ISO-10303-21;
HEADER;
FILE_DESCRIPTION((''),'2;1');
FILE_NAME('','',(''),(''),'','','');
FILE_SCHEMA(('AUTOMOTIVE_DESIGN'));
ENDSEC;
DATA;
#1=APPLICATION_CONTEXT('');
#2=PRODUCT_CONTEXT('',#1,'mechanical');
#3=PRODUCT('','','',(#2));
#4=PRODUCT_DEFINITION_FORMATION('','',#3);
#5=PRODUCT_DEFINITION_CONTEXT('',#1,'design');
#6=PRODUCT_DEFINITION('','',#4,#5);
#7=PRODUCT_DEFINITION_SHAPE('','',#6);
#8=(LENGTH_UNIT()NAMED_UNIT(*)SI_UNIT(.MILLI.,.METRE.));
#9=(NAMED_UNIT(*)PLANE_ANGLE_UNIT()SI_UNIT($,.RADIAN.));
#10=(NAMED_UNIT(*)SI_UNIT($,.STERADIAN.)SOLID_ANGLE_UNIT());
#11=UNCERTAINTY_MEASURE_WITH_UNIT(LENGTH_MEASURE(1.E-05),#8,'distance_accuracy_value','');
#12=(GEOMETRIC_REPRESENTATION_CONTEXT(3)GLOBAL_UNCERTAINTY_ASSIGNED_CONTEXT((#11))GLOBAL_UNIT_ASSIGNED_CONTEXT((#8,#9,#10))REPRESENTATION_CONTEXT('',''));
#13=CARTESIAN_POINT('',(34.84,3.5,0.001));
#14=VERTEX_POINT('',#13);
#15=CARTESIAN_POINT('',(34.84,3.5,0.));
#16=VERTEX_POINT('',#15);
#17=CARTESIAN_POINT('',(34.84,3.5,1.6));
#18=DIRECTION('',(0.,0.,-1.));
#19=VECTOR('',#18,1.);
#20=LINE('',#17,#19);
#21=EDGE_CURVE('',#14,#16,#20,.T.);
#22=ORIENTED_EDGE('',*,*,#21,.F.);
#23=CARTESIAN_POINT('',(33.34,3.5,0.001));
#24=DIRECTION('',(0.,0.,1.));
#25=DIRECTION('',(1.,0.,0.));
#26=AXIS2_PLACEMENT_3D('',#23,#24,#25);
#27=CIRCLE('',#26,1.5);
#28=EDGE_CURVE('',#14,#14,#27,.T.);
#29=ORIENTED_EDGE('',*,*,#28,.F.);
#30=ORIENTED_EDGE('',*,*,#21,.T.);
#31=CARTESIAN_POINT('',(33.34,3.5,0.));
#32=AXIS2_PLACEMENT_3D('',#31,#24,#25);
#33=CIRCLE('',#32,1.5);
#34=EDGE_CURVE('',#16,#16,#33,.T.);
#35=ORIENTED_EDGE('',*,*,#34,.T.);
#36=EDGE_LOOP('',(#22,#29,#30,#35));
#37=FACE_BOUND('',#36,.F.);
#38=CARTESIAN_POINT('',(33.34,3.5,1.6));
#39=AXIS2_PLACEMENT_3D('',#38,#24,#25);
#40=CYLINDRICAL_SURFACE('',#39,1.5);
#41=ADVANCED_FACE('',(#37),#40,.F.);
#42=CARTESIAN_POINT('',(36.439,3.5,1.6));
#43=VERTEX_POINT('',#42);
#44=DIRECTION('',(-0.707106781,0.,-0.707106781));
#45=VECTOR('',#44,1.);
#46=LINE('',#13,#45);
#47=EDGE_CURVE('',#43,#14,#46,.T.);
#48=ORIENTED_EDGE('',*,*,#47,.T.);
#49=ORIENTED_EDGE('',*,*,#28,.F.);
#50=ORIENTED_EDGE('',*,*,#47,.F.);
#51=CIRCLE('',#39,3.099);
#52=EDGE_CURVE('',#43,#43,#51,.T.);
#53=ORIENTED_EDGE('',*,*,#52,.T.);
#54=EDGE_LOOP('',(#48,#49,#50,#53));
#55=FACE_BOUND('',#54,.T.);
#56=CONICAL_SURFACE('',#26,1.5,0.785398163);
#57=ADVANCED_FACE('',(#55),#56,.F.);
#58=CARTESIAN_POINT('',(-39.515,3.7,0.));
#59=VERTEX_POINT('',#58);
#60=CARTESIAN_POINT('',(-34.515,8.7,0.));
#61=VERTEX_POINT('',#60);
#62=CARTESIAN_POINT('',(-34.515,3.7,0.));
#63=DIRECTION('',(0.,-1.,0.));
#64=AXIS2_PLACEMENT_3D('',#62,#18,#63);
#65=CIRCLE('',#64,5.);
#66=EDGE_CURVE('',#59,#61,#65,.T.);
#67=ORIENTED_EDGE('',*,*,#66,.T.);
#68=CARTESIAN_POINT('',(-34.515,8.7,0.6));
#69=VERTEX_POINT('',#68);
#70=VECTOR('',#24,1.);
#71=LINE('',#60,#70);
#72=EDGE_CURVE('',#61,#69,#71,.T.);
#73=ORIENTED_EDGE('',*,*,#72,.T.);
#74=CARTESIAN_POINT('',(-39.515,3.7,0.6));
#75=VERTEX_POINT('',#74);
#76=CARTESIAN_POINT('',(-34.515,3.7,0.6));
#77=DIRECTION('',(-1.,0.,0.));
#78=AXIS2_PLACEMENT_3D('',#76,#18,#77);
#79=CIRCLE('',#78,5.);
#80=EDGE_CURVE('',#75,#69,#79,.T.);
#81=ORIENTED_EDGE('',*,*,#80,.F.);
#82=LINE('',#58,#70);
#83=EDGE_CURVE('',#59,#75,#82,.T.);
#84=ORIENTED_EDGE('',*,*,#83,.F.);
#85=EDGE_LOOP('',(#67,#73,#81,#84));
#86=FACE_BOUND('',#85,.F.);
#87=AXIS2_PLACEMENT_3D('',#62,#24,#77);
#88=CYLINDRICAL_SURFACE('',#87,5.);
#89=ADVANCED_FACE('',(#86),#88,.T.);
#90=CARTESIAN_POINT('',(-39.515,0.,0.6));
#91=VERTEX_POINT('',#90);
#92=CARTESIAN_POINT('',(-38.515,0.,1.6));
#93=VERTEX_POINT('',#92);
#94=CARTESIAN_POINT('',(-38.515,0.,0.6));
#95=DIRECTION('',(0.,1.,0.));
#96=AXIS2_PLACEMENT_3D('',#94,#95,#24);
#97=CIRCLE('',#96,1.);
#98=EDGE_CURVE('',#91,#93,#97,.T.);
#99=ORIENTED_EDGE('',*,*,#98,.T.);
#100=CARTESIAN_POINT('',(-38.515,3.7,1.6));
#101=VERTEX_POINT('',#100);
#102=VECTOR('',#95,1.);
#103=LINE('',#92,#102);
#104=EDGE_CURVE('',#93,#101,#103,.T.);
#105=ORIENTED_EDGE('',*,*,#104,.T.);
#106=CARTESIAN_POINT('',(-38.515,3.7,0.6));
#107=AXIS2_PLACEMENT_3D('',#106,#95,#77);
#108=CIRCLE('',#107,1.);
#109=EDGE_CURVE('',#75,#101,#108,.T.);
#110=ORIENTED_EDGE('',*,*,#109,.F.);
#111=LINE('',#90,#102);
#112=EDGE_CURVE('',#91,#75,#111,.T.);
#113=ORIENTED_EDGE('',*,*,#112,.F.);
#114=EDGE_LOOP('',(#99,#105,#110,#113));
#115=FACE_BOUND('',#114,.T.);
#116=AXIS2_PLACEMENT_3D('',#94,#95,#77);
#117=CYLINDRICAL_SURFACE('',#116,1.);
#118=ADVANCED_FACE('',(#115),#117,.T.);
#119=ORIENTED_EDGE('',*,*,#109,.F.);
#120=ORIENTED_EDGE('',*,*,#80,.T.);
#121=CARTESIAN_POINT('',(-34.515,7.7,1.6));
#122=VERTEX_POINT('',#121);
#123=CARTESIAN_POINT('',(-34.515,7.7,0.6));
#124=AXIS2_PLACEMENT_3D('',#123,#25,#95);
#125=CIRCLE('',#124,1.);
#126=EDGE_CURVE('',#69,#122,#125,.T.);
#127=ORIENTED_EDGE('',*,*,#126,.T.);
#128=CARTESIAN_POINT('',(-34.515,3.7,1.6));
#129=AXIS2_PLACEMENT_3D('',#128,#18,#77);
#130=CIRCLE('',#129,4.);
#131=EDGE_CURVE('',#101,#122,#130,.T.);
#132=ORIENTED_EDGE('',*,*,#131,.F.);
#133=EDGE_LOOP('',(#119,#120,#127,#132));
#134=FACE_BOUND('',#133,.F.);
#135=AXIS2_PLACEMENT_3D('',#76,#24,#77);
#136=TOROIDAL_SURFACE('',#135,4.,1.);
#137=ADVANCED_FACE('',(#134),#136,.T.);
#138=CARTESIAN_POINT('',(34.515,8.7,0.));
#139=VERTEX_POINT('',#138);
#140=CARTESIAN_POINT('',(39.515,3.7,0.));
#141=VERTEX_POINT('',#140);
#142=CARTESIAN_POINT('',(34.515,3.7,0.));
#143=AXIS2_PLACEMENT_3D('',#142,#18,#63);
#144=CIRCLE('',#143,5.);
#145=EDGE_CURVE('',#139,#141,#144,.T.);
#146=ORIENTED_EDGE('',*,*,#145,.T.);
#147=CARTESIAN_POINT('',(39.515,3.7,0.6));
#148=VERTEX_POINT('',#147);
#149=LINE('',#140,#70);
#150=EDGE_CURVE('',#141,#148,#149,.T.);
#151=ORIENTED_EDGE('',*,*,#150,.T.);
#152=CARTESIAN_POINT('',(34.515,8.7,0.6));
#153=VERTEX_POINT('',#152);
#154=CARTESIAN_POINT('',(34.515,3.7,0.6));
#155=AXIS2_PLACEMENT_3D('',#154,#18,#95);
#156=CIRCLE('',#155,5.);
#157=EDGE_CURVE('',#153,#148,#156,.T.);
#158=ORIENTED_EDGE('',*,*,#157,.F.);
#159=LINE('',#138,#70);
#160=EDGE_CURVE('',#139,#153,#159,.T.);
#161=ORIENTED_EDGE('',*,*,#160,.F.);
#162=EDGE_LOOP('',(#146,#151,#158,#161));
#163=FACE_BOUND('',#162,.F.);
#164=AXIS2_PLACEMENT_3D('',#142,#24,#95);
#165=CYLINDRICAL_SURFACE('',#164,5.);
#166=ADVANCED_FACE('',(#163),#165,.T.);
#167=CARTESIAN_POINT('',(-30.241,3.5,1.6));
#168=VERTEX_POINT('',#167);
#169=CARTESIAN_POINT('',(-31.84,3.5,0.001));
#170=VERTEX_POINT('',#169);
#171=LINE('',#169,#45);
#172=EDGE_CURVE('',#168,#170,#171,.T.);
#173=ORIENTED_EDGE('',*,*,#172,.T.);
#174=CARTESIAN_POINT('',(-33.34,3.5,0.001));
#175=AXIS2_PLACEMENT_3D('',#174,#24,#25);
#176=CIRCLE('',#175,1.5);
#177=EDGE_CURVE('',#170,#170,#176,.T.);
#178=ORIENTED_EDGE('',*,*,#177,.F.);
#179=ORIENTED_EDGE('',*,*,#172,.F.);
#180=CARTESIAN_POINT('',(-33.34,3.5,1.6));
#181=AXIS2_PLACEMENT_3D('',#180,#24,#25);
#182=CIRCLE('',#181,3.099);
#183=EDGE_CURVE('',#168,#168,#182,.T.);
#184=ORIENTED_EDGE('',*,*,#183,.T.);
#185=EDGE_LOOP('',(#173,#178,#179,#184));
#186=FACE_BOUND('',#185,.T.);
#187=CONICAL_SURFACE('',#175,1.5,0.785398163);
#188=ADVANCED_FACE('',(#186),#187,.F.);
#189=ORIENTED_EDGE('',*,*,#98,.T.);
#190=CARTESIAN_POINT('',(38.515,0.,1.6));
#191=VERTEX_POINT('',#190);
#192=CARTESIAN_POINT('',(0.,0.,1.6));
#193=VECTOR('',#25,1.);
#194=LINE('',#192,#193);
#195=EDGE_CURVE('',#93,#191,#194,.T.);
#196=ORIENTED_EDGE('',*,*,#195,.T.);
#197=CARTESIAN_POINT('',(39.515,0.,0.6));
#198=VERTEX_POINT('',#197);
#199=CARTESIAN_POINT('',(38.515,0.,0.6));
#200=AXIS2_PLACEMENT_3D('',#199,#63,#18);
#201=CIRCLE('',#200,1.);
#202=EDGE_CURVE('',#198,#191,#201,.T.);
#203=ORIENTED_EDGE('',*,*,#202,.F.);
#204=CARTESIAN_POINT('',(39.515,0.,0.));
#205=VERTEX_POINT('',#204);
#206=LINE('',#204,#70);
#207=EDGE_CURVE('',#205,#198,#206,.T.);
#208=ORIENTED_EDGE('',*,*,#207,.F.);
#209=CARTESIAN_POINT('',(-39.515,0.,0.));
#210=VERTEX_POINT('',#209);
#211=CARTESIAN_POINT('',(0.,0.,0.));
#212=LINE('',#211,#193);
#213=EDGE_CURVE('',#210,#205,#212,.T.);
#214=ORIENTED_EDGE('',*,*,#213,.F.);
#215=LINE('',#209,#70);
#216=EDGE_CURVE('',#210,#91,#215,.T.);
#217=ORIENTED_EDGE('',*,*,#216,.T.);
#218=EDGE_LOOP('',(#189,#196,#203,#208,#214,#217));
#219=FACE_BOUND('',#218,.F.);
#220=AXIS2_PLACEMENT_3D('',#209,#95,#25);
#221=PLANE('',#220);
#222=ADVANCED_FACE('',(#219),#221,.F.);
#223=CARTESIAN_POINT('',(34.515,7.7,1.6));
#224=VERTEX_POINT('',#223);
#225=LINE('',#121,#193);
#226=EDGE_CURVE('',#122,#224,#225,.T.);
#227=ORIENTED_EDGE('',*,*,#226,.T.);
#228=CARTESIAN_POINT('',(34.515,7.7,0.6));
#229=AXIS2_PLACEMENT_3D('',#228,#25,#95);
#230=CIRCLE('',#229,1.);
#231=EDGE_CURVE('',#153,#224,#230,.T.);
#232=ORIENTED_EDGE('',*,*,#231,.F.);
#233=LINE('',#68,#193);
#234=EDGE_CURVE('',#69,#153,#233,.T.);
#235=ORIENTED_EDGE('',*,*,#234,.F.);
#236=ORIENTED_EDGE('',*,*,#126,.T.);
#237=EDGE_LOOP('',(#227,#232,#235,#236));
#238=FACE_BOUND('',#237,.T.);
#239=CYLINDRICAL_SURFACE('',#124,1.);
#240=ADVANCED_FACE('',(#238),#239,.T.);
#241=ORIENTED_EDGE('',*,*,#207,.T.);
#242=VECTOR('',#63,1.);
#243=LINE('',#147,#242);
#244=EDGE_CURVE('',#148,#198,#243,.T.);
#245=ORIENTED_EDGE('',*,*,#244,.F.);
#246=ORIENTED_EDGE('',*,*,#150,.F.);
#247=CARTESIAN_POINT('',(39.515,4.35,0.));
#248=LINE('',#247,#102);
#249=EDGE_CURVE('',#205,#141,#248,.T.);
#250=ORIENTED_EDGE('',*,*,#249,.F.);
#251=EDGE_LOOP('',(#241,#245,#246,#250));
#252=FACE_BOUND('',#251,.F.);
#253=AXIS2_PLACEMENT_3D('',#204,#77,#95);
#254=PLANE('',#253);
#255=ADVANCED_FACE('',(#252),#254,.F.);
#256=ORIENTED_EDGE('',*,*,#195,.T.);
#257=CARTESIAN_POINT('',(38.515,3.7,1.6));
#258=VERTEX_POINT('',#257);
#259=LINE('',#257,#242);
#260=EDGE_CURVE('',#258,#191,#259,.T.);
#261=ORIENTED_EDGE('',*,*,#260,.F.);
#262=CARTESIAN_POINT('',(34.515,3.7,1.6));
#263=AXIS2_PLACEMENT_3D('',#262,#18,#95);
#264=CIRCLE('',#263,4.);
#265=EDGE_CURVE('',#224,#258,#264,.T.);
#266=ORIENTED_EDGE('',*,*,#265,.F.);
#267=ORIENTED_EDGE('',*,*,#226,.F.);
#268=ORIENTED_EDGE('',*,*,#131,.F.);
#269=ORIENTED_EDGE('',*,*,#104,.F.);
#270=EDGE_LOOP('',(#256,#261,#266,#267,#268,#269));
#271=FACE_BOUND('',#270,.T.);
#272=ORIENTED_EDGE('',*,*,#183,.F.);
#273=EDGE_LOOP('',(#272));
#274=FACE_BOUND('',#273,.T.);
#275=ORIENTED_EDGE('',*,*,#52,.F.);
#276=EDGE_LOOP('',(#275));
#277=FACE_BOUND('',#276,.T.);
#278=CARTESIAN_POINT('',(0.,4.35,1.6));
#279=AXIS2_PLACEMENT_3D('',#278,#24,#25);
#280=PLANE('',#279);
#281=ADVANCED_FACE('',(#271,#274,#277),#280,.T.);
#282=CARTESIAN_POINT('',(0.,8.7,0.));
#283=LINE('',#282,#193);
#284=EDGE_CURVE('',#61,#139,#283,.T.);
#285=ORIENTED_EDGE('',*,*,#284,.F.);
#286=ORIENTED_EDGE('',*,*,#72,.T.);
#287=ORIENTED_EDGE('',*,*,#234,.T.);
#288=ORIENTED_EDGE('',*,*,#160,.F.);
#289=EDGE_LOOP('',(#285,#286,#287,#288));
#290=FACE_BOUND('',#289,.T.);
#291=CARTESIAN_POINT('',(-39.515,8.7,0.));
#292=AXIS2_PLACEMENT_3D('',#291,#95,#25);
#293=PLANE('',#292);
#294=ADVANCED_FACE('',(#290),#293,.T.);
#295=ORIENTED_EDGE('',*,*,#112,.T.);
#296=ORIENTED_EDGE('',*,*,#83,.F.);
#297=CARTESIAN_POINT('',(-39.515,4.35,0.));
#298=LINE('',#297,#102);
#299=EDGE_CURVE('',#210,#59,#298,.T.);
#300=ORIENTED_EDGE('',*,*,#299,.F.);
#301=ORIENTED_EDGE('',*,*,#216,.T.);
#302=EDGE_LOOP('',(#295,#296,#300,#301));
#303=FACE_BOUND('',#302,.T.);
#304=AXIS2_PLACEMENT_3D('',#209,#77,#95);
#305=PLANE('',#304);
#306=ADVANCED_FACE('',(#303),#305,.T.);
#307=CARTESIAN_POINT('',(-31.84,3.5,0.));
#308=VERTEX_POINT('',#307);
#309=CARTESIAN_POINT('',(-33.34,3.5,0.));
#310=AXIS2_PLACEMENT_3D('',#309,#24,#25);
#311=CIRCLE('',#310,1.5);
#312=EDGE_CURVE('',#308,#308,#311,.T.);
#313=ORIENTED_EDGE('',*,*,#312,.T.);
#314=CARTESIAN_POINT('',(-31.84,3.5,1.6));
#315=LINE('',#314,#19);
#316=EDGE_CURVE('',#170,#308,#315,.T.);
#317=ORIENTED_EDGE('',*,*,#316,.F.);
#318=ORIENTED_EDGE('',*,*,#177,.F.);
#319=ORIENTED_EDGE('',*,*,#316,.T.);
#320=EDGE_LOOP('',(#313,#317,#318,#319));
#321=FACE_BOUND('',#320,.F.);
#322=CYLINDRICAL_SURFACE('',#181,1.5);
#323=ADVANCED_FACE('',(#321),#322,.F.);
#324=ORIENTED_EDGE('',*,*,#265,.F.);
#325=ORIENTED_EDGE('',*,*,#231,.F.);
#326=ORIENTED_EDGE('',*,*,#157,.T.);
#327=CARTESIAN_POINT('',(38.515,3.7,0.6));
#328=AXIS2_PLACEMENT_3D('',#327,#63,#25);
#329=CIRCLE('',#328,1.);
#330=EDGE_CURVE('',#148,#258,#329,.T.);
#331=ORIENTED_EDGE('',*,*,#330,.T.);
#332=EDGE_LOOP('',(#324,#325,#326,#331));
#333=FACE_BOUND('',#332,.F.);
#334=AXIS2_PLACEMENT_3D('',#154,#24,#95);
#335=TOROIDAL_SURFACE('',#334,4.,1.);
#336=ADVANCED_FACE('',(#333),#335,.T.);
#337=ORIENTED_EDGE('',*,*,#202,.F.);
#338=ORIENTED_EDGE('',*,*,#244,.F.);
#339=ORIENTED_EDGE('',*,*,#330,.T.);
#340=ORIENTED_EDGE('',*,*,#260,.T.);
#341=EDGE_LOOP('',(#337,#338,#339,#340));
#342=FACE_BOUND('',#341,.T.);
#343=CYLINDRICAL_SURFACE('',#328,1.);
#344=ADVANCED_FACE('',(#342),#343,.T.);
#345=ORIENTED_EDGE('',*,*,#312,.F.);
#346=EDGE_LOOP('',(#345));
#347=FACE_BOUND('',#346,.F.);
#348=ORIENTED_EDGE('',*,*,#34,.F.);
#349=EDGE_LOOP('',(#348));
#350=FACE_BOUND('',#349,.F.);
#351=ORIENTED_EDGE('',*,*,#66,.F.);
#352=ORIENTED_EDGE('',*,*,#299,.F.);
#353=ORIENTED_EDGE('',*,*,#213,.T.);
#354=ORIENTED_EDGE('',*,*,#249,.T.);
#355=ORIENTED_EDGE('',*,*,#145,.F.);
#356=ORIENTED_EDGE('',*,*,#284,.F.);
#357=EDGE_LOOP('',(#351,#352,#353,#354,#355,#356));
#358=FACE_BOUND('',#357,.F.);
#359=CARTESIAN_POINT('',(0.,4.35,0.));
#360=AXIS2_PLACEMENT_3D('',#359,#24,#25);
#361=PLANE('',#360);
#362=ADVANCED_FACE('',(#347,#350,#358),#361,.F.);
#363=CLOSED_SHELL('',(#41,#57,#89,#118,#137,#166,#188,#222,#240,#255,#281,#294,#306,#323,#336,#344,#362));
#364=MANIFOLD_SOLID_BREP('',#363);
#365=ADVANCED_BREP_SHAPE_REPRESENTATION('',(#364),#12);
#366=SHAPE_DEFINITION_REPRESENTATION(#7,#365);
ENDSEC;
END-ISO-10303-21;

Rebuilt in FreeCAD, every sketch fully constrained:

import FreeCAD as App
import Part
import Sketcher
Q = App.Units.Quantity


def edges_at(feature, points):
    """Names of the edges that pass closest to the given points."""
    edges = feature.Shape.Edges
    near = lambda p: min(range(len(edges)), key=lambda i: edges[i].distToShape(Part.Vertex(*p))[0])
    return sorted({f"Edge{near(p) + 1}" for p in points})

doc = App.newDocument("Part")
body = doc.addObject("PartDesign::Body", "Body")

# Sketch on XY plane
sketch1 = body.newObject("Sketcher::SketchObject", "Sketch")
sketch1.AttachmentSupport = (doc.getObject("XY_Plane"), [""])
sketch1.MapMode = "FlatFace"
sketch1.addGeometry([
    Part.LineSegment(App.Vector(-40, 9, 0), App.Vector(-40, 0, 0)),
    Part.LineSegment(App.Vector(-40, 0, 0), App.Vector(40, 0, 0)),
    Part.LineSegment(App.Vector(40, 0, 0), App.Vector(40, 9, 0)),
    Part.LineSegment(App.Vector(40, 9, 0), App.Vector(-40, 9, 0)),
], False)
sketch1.addConstraint([
    Sketcher.Constraint("Coincident", 0, 2, 1, 1),
    Sketcher.Constraint("Coincident", 1, 2, 2, 1),
    Sketcher.Constraint("Coincident", 2, 2, 3, 1),
    Sketcher.Constraint("Coincident", 3, 2, 0, 1),
    Sketcher.Constraint("Vertical", 0),
    Sketcher.Constraint("Horizontal", 1),
    Sketcher.Constraint("Vertical", 2),
    Sketcher.Constraint("Horizontal", 3),
    Sketcher.Constraint("Symmetric", 0, 2, 1, 2, -1, 1),
    Sketcher.Constraint("DistanceY", 0, 2, 0, 1, Q("8.7 mm")),
    Sketcher.Constraint("DistanceX", 1, 1, 1, 2, Q("79.03 mm")),
])
pad1 = body.newObject("PartDesign::Pad", "Pad")
pad1.Profile = sketch1
pad1.Length = 1.6

# Sketch on XY plane
sketch2 = body.newObject("Sketcher::SketchObject", "Sketch001")
sketch2.AttachmentSupport = (doc.getObject("XY_Plane"), [""])
sketch2.MapMode = "FlatFace"
sketch2.AttachmentOffset = App.Placement(App.Vector(0, 0, 1.6), App.Rotation())
sketch2.addGeometry([
    Part.Circle(App.Vector(-33.3, 3.5, 0), App.Vector(0, 0, 1), 1.5),
    Part.Circle(App.Vector(33.3, 3.5, 0), App.Vector(0, 0, 1), 1.5),
], False)
sketch2.addConstraint([
    Sketcher.Constraint("Equal", 0, 1),
    Sketcher.Constraint("Symmetric", 0, 3, 1, 3, -2),
    Sketcher.Constraint("Diameter", 0, Q("3 mm")),
    Sketcher.Constraint("DistanceY", -1, 1, 0, 3, Q("3.5 mm")),
    Sketcher.Constraint("DistanceX", 0, 3, -1, 1, Q("33.34 mm")),
])
pocket1 = body.newObject("PartDesign::Pocket", "Pocket")
pocket1.Profile = sketch2
pocket1.Type = "ThroughAll"
doc.recompute()

fillet = body.newObject("PartDesign::Fillet", "Fillet")
fillet.Base = (pocket1, edges_at(pocket1, [(39.515, 8.7, 0.8), (-39.515, 8.7, 0.8)]))
fillet.Radius = 5
doc.recompute()

fillet2 = body.newObject("PartDesign::Fillet", "Fillet001")
fillet2.Base = (fillet, edges_at(fillet, [(-38.051, 7.236, 1.6)]))
fillet2.Radius = 1
doc.recompute()

chamfer = body.newObject("PartDesign::Chamfer", "Chamfer")
chamfer.Base = (fillet2, edges_at(fillet2, [(31.84, 3.5, 1.6), (-34.84, 3.5, 1.6)]))
chamfer.Size = 1.599

doc.recompute()
